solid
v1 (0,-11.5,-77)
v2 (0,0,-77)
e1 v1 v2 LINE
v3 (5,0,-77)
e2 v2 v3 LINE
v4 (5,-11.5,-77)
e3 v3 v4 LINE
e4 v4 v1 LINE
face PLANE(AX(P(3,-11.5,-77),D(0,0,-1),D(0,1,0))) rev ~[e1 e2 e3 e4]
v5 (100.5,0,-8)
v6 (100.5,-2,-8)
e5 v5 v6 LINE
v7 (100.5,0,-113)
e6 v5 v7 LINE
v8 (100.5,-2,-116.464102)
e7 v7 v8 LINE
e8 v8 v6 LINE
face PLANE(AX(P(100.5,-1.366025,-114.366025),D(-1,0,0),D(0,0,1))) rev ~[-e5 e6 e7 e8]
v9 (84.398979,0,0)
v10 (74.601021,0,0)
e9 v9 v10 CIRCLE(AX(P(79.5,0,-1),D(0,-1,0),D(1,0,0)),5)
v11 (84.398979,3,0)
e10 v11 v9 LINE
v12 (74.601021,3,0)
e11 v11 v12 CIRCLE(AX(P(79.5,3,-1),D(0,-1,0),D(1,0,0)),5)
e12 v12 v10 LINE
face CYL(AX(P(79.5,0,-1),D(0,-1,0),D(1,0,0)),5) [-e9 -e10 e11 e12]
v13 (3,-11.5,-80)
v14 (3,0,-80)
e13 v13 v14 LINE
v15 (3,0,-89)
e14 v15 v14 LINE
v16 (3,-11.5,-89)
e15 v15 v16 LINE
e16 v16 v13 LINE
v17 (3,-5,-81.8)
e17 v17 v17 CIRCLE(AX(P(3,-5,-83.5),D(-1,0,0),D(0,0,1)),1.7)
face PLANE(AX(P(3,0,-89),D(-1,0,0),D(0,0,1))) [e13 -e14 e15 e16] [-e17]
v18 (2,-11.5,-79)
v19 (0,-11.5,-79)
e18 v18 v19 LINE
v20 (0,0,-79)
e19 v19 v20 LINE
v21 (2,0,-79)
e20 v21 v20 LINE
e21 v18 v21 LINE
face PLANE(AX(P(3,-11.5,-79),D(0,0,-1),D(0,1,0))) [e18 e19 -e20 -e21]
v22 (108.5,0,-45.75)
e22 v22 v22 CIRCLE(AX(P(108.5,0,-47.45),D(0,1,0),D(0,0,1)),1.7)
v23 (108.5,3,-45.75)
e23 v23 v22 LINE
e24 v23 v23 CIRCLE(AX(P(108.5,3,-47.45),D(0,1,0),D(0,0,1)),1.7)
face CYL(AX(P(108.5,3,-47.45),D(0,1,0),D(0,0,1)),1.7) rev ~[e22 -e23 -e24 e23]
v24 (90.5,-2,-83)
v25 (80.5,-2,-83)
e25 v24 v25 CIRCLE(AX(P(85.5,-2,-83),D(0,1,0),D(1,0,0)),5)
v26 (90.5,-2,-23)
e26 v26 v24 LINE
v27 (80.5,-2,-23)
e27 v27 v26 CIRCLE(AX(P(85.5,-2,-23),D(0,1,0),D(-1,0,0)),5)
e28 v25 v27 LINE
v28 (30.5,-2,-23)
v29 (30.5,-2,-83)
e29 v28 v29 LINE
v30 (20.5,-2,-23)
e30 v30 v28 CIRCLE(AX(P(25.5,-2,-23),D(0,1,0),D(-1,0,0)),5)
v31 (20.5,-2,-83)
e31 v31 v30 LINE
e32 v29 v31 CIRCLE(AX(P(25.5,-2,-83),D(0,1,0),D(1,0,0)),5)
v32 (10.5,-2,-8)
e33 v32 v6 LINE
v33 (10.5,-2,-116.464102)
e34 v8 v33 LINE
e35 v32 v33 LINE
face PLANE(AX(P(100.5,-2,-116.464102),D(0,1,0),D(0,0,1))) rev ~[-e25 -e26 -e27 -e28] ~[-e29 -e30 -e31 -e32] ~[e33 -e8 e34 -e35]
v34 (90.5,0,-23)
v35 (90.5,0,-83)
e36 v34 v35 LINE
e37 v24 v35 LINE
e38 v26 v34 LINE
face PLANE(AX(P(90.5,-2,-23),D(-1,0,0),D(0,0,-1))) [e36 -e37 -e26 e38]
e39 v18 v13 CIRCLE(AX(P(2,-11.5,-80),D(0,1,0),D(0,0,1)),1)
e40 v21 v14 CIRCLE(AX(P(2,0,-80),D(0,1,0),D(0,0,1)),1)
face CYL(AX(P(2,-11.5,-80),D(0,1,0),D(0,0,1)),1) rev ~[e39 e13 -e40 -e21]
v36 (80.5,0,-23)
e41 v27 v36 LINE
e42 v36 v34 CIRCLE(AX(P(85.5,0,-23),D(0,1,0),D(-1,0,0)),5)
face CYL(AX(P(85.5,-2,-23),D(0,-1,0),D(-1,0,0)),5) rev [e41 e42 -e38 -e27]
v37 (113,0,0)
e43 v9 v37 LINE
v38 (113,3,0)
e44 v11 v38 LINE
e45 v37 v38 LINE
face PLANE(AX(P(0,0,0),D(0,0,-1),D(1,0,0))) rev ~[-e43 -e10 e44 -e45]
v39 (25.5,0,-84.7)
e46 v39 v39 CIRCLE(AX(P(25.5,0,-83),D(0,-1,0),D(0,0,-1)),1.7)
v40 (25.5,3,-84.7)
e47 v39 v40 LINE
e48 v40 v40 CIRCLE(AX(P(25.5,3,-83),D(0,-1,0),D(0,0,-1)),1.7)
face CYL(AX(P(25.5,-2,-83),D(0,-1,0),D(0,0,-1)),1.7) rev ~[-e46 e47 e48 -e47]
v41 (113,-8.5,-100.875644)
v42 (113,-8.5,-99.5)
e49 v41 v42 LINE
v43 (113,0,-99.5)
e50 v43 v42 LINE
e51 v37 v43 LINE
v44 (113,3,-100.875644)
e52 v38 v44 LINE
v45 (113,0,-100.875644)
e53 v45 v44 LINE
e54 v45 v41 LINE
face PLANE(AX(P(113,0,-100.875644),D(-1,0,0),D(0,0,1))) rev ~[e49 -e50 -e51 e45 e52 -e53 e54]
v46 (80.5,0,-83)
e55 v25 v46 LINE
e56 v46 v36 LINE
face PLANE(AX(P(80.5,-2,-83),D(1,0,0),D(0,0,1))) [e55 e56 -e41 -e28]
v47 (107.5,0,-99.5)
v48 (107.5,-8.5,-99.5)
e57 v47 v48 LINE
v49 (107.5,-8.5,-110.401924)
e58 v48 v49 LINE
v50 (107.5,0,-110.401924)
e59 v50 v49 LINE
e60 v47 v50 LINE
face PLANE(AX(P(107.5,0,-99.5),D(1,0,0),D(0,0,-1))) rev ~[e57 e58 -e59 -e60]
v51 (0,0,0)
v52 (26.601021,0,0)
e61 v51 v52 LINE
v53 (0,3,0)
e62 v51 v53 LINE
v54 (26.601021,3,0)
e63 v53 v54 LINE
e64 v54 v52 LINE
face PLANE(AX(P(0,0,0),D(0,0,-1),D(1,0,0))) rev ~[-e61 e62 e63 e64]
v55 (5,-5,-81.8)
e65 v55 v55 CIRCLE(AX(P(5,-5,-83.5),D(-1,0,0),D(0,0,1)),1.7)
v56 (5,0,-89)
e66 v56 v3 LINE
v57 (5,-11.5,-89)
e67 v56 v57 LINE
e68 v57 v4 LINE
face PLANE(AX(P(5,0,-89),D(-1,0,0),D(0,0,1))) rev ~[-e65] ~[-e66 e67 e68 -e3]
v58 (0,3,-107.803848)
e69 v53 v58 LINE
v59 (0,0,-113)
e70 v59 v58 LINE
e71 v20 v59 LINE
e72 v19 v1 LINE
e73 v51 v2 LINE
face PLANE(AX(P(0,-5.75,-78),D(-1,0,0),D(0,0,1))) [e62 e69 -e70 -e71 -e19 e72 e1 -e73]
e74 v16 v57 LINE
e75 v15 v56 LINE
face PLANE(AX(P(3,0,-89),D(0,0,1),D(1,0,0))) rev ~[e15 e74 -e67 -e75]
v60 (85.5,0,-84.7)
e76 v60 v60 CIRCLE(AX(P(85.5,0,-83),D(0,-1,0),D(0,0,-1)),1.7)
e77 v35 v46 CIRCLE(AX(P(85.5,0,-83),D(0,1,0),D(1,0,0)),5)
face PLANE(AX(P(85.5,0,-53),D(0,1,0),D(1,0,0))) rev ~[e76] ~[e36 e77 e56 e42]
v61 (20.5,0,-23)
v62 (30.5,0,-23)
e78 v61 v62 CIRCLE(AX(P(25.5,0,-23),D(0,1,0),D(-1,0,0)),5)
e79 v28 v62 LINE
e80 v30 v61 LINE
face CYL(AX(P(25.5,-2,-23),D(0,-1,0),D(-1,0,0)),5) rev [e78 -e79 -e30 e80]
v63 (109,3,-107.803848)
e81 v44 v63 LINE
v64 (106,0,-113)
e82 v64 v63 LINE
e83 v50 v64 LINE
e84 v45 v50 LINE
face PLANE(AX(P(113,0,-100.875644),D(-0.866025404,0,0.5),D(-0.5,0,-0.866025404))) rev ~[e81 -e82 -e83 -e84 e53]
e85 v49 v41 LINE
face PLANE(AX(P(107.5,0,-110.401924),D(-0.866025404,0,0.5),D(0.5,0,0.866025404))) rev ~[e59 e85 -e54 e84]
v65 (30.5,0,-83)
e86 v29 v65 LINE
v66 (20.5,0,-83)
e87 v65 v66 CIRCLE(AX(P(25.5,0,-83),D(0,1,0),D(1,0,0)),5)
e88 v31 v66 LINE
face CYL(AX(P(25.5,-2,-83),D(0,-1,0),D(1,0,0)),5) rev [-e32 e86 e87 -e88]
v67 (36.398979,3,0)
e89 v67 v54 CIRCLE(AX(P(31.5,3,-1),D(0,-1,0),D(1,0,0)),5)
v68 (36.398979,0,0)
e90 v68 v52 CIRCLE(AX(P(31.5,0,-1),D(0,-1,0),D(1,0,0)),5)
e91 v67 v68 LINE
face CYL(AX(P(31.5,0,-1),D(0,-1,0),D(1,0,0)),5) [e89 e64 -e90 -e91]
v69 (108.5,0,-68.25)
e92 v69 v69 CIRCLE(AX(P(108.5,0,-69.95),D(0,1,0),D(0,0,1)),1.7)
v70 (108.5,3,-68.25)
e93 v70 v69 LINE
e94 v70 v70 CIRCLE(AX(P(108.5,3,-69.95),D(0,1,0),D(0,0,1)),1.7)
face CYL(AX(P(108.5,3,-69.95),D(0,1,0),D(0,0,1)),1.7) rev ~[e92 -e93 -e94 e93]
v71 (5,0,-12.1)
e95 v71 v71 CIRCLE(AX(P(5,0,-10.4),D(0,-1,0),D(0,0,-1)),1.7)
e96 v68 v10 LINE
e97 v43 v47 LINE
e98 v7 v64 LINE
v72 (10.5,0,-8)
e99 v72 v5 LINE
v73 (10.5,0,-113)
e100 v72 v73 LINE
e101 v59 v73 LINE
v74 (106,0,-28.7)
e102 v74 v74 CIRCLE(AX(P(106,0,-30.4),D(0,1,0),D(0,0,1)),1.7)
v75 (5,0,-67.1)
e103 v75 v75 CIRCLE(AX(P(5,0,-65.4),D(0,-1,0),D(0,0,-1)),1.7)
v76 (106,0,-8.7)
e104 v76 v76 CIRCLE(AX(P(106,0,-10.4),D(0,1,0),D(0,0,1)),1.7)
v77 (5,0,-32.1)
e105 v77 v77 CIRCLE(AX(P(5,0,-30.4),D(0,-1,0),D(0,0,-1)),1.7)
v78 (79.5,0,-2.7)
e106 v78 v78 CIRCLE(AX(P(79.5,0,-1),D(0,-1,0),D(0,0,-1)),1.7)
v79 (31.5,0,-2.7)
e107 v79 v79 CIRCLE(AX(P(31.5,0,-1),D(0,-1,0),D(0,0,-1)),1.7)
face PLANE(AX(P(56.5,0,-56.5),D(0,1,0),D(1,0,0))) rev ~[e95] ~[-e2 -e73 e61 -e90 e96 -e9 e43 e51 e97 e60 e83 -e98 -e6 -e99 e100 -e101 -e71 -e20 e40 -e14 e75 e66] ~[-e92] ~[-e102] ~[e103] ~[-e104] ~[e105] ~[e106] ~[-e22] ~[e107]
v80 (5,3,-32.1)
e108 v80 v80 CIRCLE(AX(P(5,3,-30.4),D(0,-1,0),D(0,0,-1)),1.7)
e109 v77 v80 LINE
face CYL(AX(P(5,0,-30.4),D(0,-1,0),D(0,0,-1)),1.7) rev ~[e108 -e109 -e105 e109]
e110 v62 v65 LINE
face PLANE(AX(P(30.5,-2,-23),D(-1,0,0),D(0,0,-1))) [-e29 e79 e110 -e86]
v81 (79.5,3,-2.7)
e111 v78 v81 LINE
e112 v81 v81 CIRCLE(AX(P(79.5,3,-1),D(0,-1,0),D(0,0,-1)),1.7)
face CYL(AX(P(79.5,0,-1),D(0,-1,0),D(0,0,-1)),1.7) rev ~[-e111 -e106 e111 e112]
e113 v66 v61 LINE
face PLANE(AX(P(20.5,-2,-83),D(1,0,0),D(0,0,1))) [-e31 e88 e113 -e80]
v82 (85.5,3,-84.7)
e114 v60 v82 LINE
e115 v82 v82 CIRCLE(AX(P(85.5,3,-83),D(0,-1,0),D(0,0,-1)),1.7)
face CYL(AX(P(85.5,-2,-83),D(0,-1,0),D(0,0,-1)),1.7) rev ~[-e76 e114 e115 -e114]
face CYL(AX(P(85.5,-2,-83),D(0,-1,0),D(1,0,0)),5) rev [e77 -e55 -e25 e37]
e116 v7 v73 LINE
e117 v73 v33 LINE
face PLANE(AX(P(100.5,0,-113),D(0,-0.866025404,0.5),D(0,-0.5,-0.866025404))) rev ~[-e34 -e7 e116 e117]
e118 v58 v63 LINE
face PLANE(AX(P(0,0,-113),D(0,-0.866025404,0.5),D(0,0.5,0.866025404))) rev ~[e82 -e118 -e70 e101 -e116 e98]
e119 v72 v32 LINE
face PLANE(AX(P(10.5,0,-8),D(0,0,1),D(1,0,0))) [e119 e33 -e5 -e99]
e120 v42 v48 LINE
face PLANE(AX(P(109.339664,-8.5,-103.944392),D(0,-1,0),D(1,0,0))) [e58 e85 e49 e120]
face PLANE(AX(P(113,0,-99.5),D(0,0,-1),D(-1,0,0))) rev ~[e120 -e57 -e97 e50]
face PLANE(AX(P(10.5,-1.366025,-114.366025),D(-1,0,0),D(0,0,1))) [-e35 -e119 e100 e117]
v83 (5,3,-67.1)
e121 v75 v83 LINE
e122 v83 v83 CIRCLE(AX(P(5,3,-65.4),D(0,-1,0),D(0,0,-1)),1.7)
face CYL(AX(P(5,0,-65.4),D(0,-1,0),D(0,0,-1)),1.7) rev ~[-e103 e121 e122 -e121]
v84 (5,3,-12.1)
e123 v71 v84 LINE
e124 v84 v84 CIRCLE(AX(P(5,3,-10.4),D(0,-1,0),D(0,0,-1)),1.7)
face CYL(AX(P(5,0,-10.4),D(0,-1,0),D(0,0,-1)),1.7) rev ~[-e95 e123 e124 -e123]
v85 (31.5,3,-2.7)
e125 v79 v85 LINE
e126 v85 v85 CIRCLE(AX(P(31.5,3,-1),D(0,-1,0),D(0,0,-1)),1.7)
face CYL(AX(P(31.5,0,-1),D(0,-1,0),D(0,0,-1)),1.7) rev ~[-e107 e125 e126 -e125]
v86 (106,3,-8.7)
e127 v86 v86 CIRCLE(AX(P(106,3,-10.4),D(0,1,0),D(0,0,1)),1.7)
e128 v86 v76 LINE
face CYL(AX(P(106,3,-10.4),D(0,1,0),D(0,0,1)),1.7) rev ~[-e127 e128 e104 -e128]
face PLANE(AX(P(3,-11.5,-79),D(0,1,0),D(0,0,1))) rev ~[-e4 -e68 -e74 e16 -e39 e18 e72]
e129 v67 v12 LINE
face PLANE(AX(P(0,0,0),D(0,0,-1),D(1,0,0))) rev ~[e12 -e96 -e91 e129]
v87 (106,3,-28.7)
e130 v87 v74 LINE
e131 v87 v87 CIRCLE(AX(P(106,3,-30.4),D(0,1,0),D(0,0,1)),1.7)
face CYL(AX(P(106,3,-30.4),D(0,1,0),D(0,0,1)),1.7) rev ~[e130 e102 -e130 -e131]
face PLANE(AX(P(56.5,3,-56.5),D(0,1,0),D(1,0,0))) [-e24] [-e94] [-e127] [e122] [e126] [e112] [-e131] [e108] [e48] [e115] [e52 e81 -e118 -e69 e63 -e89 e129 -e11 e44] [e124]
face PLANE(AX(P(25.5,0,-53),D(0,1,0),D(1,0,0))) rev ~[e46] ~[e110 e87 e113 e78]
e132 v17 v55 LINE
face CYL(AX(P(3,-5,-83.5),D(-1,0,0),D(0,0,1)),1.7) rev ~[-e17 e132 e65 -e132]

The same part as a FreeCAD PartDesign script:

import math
import FreeCAD as App
import Part
import Sketcher

V = App.Vector
Q = App.Units.Quantity


def edges_at(feature, points):
    """Names of the edges that pass closest to the given points."""
    edges = feature.Shape.Edges
    near = lambda p: min(range(len(edges)), key=lambda i: edges[i].distToShape(Part.Vertex(*p))[0])
    return sorted({f"Edge{near(p) + 1}" for p in points})


def add_polygon(sketch, points):
    """Adds a closed chain of lines whose ends are joined by coincident constraints."""
    first, n = sketch.GeometryCount, len(points)
    for a, b in zip(points, points[1:] + points[:1]):
        sketch.addGeometry(Part.LineSegment(App.Vector(*a, 0), App.Vector(*b, 0)), False)
    for i in range(n):
        sketch.addConstraint(Sketcher.Constraint("Coincident", first + i, 2, first + (i + 1) % n, 1))

doc = App.newDocument("Part")
body = doc.addObject("PartDesign::Body", "Body")

sketch1 = body.newObject("Sketcher::SketchObject", "Sketch")
sketch1.AttachmentSupport = (doc.getObject("XZ_Plane"), [""])
sketch1.MapMode = "FlatFace"
add_polygon(sketch1, [(0, -113), (0, 0), (113, 0), (113, -113)])
sketch1.addConstraint([
    Sketcher.Constraint("Vertical", 0),
    Sketcher.Constraint("Horizontal", 1),
    Sketcher.Constraint("Vertical", 2),
    Sketcher.Constraint("Horizontal", 3),
    Sketcher.Constraint("Coincident", 0, 2, -1, 1),
    Sketcher.Constraint("Equal", 3, 0),
    Sketcher.Constraint("DistanceX", 1, 1, 1, 2, Q("113 mm")),
])
pad1 = body.newObject("PartDesign::Pad", "Pad")
pad1.Profile = sketch1
pad1.Length = 3
pad1.Reversed = True

sketch2 = body.newObject("Sketcher::SketchObject", "Sketch001")
sketch2.AttachmentSupport = (doc.getObject("XZ_Plane"), [""])
sketch2.MapMode = "FlatFace"
sketch2.AttachmentOffset = App.Placement(V(0, 0, -3), App.Rotation())
sketch2.addGeometry(Part.Circle(V(108.5, -70, 0), V(0, 0, 1), 1.7), False)
sketch2.addConstraint([
    Sketcher.Constraint("Diameter", 0, Q("3.4 mm")),
    Sketcher.Constraint("DistanceX", -1, 1, 0, 3, Q("108.5 mm")),
    Sketcher.Constraint("DistanceY", 0, 3, -1, 1, Q("69.95 mm")),
])
pocket1 = body.newObject("PartDesign::Pocket", "Pocket")
pocket1.Profile = sketch2
pocket1.Type = "UpToFirst"
pocket1.Reversed = True

sketch3 = body.newObject("Sketcher::SketchObject", "Sketch002")
sketch3.AttachmentSupport = (doc.getObject("XZ_Plane"), [""])
sketch3.MapMode = "FlatFace"
sketch3.AttachmentOffset = App.Placement(V(0, 0, -3), App.Rotation())
sketch3.addGeometry(Part.Circle(V(108.5, -47.5, 0), V(0, 0, 1), 1.7), False)
sketch3.addConstraint([
    Sketcher.Constraint("Diameter", 0, Q("3.4 mm")),
    Sketcher.Constraint("DistanceX", -1, 1, 0, 3, Q("108.5 mm")),
    Sketcher.Constraint("DistanceY", 0, 3, -1, 1, Q("47.45 mm")),
])
pocket2 = body.newObject("PartDesign::Pocket", "Pocket001")
pocket2.Profile = sketch3
pocket2.Type = "UpToFirst"
pocket2.Reversed = True

sketch4 = body.newObject("Sketcher::SketchObject", "Sketch003")
sketch4.AttachmentSupport = (doc.getObject("XZ_Plane"), [""])
sketch4.MapMode = "FlatFace"
sketch4.AttachmentOffset = App.Placement(V(0, 0, -3), App.Rotation())
sketch4.addGeometry(Part.Circle(V(106, -30.4, 0), V(0, 0, 1), 1.7), False)
sketch4.addConstraint([
    Sketcher.Constraint("Diameter", 0, Q("3.4 mm")),
    Sketcher.Constraint("DistanceX", -1, 1, 0, 3, Q("106 mm")),
    Sketcher.Constraint("DistanceY", 0, 3, -1, 1, Q("30.4 mm")),
])
pocket3 = body.newObject("PartDesign::Pocket", "Pocket002")
pocket3.Profile = sketch4
pocket3.Type = "UpToFirst"
pocket3.Reversed = True

sketch5 = body.newObject("Sketcher::SketchObject", "Sketch004")
sketch5.AttachmentSupport = (doc.getObject("XZ_Plane"), [""])
sketch5.MapMode = "FlatFace"
sketch5.AttachmentOffset = App.Placement(V(0, 0, -3), App.Rotation())
sketch5.addGeometry(Part.Circle(V(106, -10.4, 0), V(0, 0, 1), 1.7), False)
sketch5.addConstraint([
    Sketcher.Constraint("Diameter", 0, Q("3.4 mm")),
    Sketcher.Constraint("DistanceX", -1, 1, 0, 3, Q("106 mm")),
    Sketcher.Constraint("DistanceY", 0, 3, -1, 1, Q("10.4 mm")),
])
pocket4 = body.newObject("PartDesign::Pocket", "Pocket003")
pocket4.Profile = sketch5
pocket4.Type = "UpToFirst"
pocket4.Reversed = True

sketch6 = body.newObject("Sketcher::SketchObject", "Sketch005")
sketch6.AttachmentSupport = (doc.getObject("XZ_Plane"), [""])
sketch6.MapMode = "FlatFace"
add_polygon(sketch6, [(10, -113), (10, -8), (100, -8), (100, -113)])
sketch6.addConstraint([
    Sketcher.Constraint("Vertical", 0),
    Sketcher.Constraint("Horizontal", 1),
    Sketcher.Constraint("Vertical", 2),
    Sketcher.Constraint("Horizontal", 3),
    Sketcher.Constraint("DistanceX", 1, 1, 1, 2, Q("90 mm")),
    Sketcher.Constraint("DistanceY", 0, 1, 0, 2, Q("105 mm")),
    Sketcher.Constraint("DistanceY", 0, 2, -1, 1, Q("8 mm")),
    Sketcher.Constraint("DistanceX", -1, 1, 0, 2, Q("10.5 mm")),
])
pad2 = body.newObject("PartDesign::Pad", "Pad001")
pad2.Profile = sketch6
pad2.Length = 2

sketch7 = body.newObject("Sketcher::SketchObject", "Sketch006")
sketch7.AttachmentSupport = (doc.getObject("XZ_Plane"), [""])
sketch7.MapMode = "FlatFace"
sketch7.addGeometry([
    Part.Circle(V(80, -1, 0), V(0, 0, 1), 5),
    Part.Circle(V(32, -1, 0), V(0, 0, 1), 5),
], False)
sketch7.addConstraint([
    Sketcher.Constraint("Equal", 0, 1),
    Sketcher.Constraint("Horizontal", 0, 3, 1, 3),
    Sketcher.Constraint("Diameter", 0, Q("10 mm")),
    Sketcher.Constraint("DistanceY", 0, 3, -1, 1, Q("1 mm")),
    Sketcher.Constraint("DistanceX", 1, 3, 0, 3, Q("48 mm")),
    Sketcher.Constraint("DistanceX", -1, 1, 0, 3, Q("79.5 mm")),
])
pad3 = body.newObject("PartDesign::Pad", "Pad002")
pad3.Profile = sketch7
pad3.Length = 3
pad3.Reversed = True

sketch8 = body.newObject("Sketcher::SketchObject", "Sketch007")
sketch8.AttachmentSupport = (doc.getObject("XZ_Plane"), [""])
sketch8.MapMode = "FlatFace"
sketch8.addGeometry(Part.Circle(V(31.5, -1, 0), V(0, 0, 1), 1.7), False)
sketch8.addConstraint([
    Sketcher.Constraint("Diameter", 0, Q("3.4 mm")),
    Sketcher.Constraint("DistanceY", 0, 3, -1, 1, Q("1 mm")),
    Sketcher.Constraint("DistanceX", -1, 1, 0, 3, Q("31.5 mm")),
])
pocket5 = body.newObject("PartDesign::Pocket", "Pocket004")
pocket5.Profile = sketch8
pocket5.Type = "UpToFirst"

sketch9 = body.newObject("Sketcher::SketchObject", "Sketch008")
sketch9.AttachmentSupport = (doc.getObject("XZ_Plane"), [""])
sketch9.MapMode = "FlatFace"
sketch9.addGeometry(Part.Circle(V(79.5, -1, 0), V(0, 0, 1), 1.7), False)
sketch9.addConstraint([
    Sketcher.Constraint("Diameter", 0, Q("3.4 mm")),
    Sketcher.Constraint("DistanceY", 0, 3, -1, 1, Q("1 mm")),
    Sketcher.Constraint("DistanceX", -1, 1, 0, 3, Q("79.5 mm")),
])
pocket6 = body.newObject("PartDesign::Pocket", "Pocket005")
pocket6.Profile = sketch9
pocket6.Type = "UpToFirst"

sketch10 = body.newObject("Sketcher::SketchObject", "Sketch009")
sketch10.AttachmentSupport = (doc.getObject("XZ_Plane"), [""])
sketch10.MapMode = "FlatFace"
sketch10.addGeometry(Part.Circle(V(5, -10.4, 0), V(0, 0, 1), 1.7), False)
sketch10.addConstraint([
    Sketcher.Constraint("Diameter", 0, Q("3.4 mm")),
    Sketcher.Constraint("DistanceX", -1, 1, 0, 3, Q("5 mm")),
    Sketcher.Constraint("DistanceY", 0, 3, -1, 1, Q("10.4 mm")),
])
pocket7 = body.newObject("PartDesign::Pocket", "Pocket006")
pocket7.Profile = sketch10
pocket7.Type = "UpToFirst"

sketch11 = body.newObject("Sketcher::SketchObject", "Sketch010")
sketch11.AttachmentSupport = (doc.getObject("XZ_Plane"), [""])
sketch11.MapMode = "FlatFace"
sketch11.addGeometry(Part.Circle(V(5, -30.4, 0), V(0, 0, 1), 1.7), False)
sketch11.addConstraint([
    Sketcher.Constraint("Diameter", 0, Q("3.4 mm")),
    Sketcher.Constraint("DistanceX", -1, 1, 0, 3, Q("5 mm")),
    Sketcher.Constraint("DistanceY", 0, 3, -1, 1, Q("30.4 mm")),
])
pocket8 = body.newObject("PartDesign::Pocket", "Pocket007")
pocket8.Profile = sketch11
pocket8.Type = "UpToFirst"

sketch12 = body.newObject("Sketcher::SketchObject", "Sketch011")
sketch12.AttachmentSupport = (doc.getObject("XZ_Plane"), [""])
sketch12.MapMode = "FlatFace"
sketch12.addGeometry(Part.Circle(V(5, -65.4, 0), V(0, 0, 1), 1.7), False)
sketch12.addConstraint([
    Sketcher.Constraint("Diameter", 0, Q("3.4 mm")),
    Sketcher.Constraint("DistanceX", -1, 1, 0, 3, Q("5 mm")),
    Sketcher.Constraint("DistanceY", 0, 3, -1, 1, Q("65.4 mm")),
])
pocket9 = body.newObject("PartDesign::Pocket", "Pocket008")
pocket9.Profile = sketch12
pocket9.Type = "UpToFirst"

sketch13 = body.newObject("Sketcher::SketchObject", "Sketch012")
sketch13.AttachmentSupport = (doc.getObject("XZ_Plane"), [""])
sketch13.MapMode = "FlatFace"
sketch13.AttachmentOffset = App.Placement(V(0, 0, 2), App.Rotation())
sketch13.addGeometry(Part.Circle(V(25.5, -83, 0), V(0, 0, 1), 1.7), False)
sketch13.addConstraint([
    Sketcher.Constraint("Diameter", 0, Q("3.4 mm")),
    Sketcher.Constraint("DistanceY", 0, 3, -1, 1, Q("83 mm")),
    Sketcher.Constraint("DistanceX", -1, 1, 0, 3, Q("25.5 mm")),
])
pocket10 = body.newObject("PartDesign::Pocket", "Pocket009")
pocket10.Profile = sketch13
pocket10.Type = "UpToFirst"

sketch14 = body.newObject("Sketcher::SketchObject", "Sketch013")
sketch14.AttachmentSupport = (doc.getObject("XZ_Plane"), [""])
sketch14.MapMode = "FlatFace"
sketch14.AttachmentOffset = App.Placement(V(0, 0, 2), App.Rotation())
sketch14.addGeometry(Part.Circle(V(85.5, -83, 0), V(0, 0, 1), 1.7), False)
sketch14.addConstraint([
    Sketcher.Constraint("Diameter", 0, Q("3.4 mm")),
    Sketcher.Constraint("DistanceY", 0, 3, -1, 1, Q("83 mm")),
    Sketcher.Constraint("DistanceX", -1, 1, 0, 3, Q("85.5 mm")),
])
pocket11 = body.newObject("PartDesign::Pocket", "Pocket010")
pocket11.Profile = sketch14
pocket11.Type = "UpToFirst"

sketch15 = body.newObject("Sketcher::SketchObject", "Sketch014")
sketch15.AttachmentSupport = (doc.getObject("YZ_Plane"), [""])
sketch15.MapMode = "FlatFace"
sketch15.AttachmentOffset = App.Placement(V(0, 0, 100.5), App.Rotation())
add_polygon(sketch15, [(-2, -116.5), (0, -113), (-2, -113)])
sketch15.addConstraint([
    Sketcher.Constraint("Horizontal", 1),
    Sketcher.Constraint("Vertical", 2),
    Sketcher.Constraint("PointOnObject", 0, 2, -2),
    Sketcher.Constraint("DistanceX", 1, 2, 1, 1, Q("2 mm")),
    Sketcher.Constraint("Angle", 0, Q("60 deg")),
    Sketcher.Constraint("DistanceY", 0, 2, -1, 1, Q("113 mm")),
])
pad4 = body.newObject("PartDesign::Pad", "Pad003")
pad4.Profile = sketch15
pad4.Length = 90
pad4.Reversed = True

sketch16 = body.newObject("Sketcher::SketchObject", "Sketch015")
sketch16.AttachmentSupport = (doc.getObject("XZ_Plane"), [""])
sketch16.MapMode = "FlatFace"
sketch16.AttachmentOffset = App.Placement(V(0, 0, 2), App.Rotation())
sketch16.addGeometry([
    Part.LineSegment(V(20, -83, 0), V(20, -23, 0)),
    Part.ArcOfCircle(Part.Circle(V(26, -23, 0), V(0, 0, 1), 5), math.radians(0), math.radians(180)),
    Part.LineSegment(V(30, -23, 0), V(30, -83, 0)),
    Part.ArcOfCircle(Part.Circle(V(26, -83, 0), V(0, 0, 1), 5), math.radians(180), math.radians(360)),
    Part.LineSegment(V(80, -83, 0), V(80, -23, 0)),
    Part.ArcOfCircle(Part.Circle(V(86, -23, 0), V(0, 0, 1), 5), math.radians(0), math.radians(180)),
    Part.LineSegment(V(90, -23, 0), V(90, -83, 0)),
    Part.ArcOfCircle(Part.Circle(V(86, -83, 0), V(0, 0, 1), 5), math.radians(180), math.radians(360)),
], False)
sketch16.addConstraint([
    Sketcher.Constraint("Tangent", 0, 2, 1, 2),
    Sketcher.Constraint("Tangent", 1, 1, 2, 1),
    Sketcher.Constraint("Tangent", 2, 2, 3, 2),
    Sketcher.Constraint("Tangent", 3, 1, 0, 1),
    Sketcher.Constraint("Tangent", 4, 2, 5, 2),
    Sketcher.Constraint("Tangent", 5, 1, 6, 1),
    Sketcher.Constraint("Tangent", 6, 2, 7, 2),
    Sketcher.Constraint("Tangent", 7, 1, 4, 1),
    Sketcher.Constraint("Vertical", 0),
    Sketcher.Constraint("Vertical", 2),
    Sketcher.Constraint("Vertical", 4),
    Sketcher.Constraint("Vertical", 6),
    Sketcher.Constraint("Equal", 3, 5),
    Sketcher.Constraint("Horizontal", 1, 3, 5, 3),
    Sketcher.Constraint("Horizontal", 3, 3, 7, 3),
    Sketcher.Constraint("Radius", 1, Q("5 mm")),
    Sketcher.Constraint("DistanceY", 0, 1, 0, 2, Q("60 mm")),
    Sketcher.Constraint("DistanceY", 1, 3, -1, 1, Q("23 mm")),
    Sketcher.Constraint("DistanceX", 1, 3, 5, 3, Q("60 mm")),
    Sketcher.Constraint("DistanceX", -1, 1, 1, 3, Q("25.5 mm")),
])
pocket12 = body.newObject("PartDesign::Pocket", "Pocket011")
pocket12.Profile = sketch16
pocket12.Length = 2

sketch17 = body.newObject("Sketcher::SketchObject", "Sketch016")
sketch17.AttachmentSupport = (doc.getObject("XZ_Plane"), [""])
sketch17.MapMode = "FlatFace"
add_polygon(sketch17, [(3, -77), (3, -89), (5, -89), (5, -77)])
sketch17.addConstraint([
    Sketcher.Constraint("Vertical", 0),
    Sketcher.Constraint("Horizontal", 1),
    Sketcher.Constraint("Vertical", 2),
    Sketcher.Constraint("Horizontal", 3),
    Sketcher.Constraint("DistanceX", 1, 1, 1, 2, Q("2 mm")),
    Sketcher.Constraint("DistanceY", 0, 2, 0, 1, Q("12 mm")),
    Sketcher.Constraint("DistanceX", -1, 1, 0, 2, Q("3 mm")),
    Sketcher.Constraint("DistanceY", 0, 2, -1, 1, Q("89 mm")),
])
pad5 = body.newObject("PartDesign::Pad", "Pad004")
pad5.Profile = sketch17
pad5.Length = 11.5

sketch18 = body.newObject("Sketcher::SketchObject", "Sketch017")
sketch18.AttachmentSupport = (doc.getObject("YZ_Plane"), [""])
sketch18.MapMode = "FlatFace"
sketch18.AttachmentOffset = App.Placement(V(0, 0, 3), App.Rotation())
sketch18.addGeometry(Part.Circle(V(-5, -83.5, 0), V(0, 0, 1), 1.7), False)
sketch18.addConstraint([
    Sketcher.Constraint("Diameter", 0, Q("3.4 mm")),
    Sketcher.Constraint("DistanceX", 0, 3, -1, 1, Q("5 mm")),
    Sketcher.Constraint("DistanceY", 0, 3, -1, 1, Q("83.5 mm")),
])
pocket13 = body.newObject("PartDesign::Pocket", "Pocket012")
pocket13.Profile = sketch18
pocket13.Type = "UpToFirst"
pocket13.Reversed = True

sketch19 = body.newObject("Sketcher::SketchObject", "Sketch018")
sketch19.AttachmentSupport = (doc.getObject("XZ_Plane"), [""])
sketch19.MapMode = "FlatFace"
add_polygon(sketch19, [(113, -101), (106, -113), (113, -113)])
sketch19.addConstraint([
    Sketcher.Constraint("Horizontal", 1),
    Sketcher.Constraint("Vertical", 2),
    Sketcher.Constraint("DistanceX", 1, 1, 1, 2, Q("7 mm")),
    Sketcher.Constraint("Angle", 0, Q("-120 deg")),
    Sketcher.Constraint("DistanceX", -1, 1, 0, 2, Q("106 mm")),
    Sketcher.Constraint("DistanceY", 0, 2, -1, 1, Q("113 mm")),
])
pocket14 = body.newObject("PartDesign::Pocket", "Pocket013")
pocket14.Profile = sketch19
pocket14.Type = "UpToFirst"

sketch20 = body.newObject("Sketcher::SketchObject", "Sketch019")
sketch20.AttachmentSupport = (doc.getObject("XZ_Plane"), [""])
sketch20.MapMode = "FlatFace"
add_polygon(sketch20, [(113, -99.5), (107.5, -99.5), (107.5, -110.4), (113, -100.9)])
sketch20.addConstraint([
    Sketcher.Constraint("Horizontal", 0),
    Sketcher.Constraint("Vertical", 1),
    Sketcher.Constraint("Vertical", 3),
    Sketcher.Constraint("Angle", 2, Q("60 deg")),
    Sketcher.Constraint("Distance", 2, Q("11 mm")),
    Sketcher.Constraint("DistanceX", -1, 1, 2, 2, Q("113 mm")),
    Sketcher.Constraint("DistanceY", 0, 2, -1, 1, Q("99.5 mm")),
    Sketcher.Constraint("DistanceY", 1, 2, 1, 1, Q("10.901924 mm")),
])
pad6 = body.newObject("PartDesign::Pad", "Pad005")
pad6.Profile = sketch20
pad6.Length = 8.5

sketch21 = body.newObject("Sketcher::SketchObject", "Sketch020")
sketch21.AttachmentSupport = (doc.getObject("YZ_Plane"), [""])
sketch21.MapMode = "FlatFace"
sketch21.AttachmentOffset = App.Placement(V(0, 0, 3), App.Rotation())
add_polygon(sketch21, [(0, -79), (-11.5, -79), (-11.5, -77), (0, -77)])
sketch21.addConstraint([
    Sketcher.Constraint("Horizontal", 0),
    Sketcher.Constraint("Vertical", 1),
    Sketcher.Constraint("Horizontal", 2),
    Sketcher.Constraint("Vertical", 3),
    Sketcher.Constraint("PointOnObject", 2, 2, -2),
    Sketcher.Constraint("DistanceY", 1, 1, 1, 2, Q("2 mm")),
    Sketcher.Constraint("DistanceX", 0, 2, 0, 1, Q("11.5 mm")),
    Sketcher.Constraint("DistanceY", 0, 2, -1, 1, Q("79 mm")),
])
pad7 = body.newObject("PartDesign::Pad", "Pad006")
pad7.Profile = sketch21
pad7.Length = 3
pad7.Reversed = True
doc.recompute()

fillet = body.newObject("PartDesign::Fillet", "Fillet")
fillet.Base = (pad7, edges_at(pad7, [(3, -5.75, -79)]))
fillet.Radius = 1

sketch22 = body.newObject("Sketcher::SketchObject", "Sketch021")
sketch22.AttachmentSupport = (doc.getObject("YZ_Plane"), [""])
sketch22.MapMode = "FlatFace"
add_polygon(sketch22, [(0, -113), (3, -107.8), (3, -113)])
sketch22.addConstraint([
    Sketcher.Constraint("Vertical", 1),
    Sketcher.Constraint("Horizontal", 2),
    Sketcher.Constraint("PointOnObject", 2, 2, -2),
    Sketcher.Constraint("DistanceX", 2, 2, 2, 1, Q("3 mm")),
    Sketcher.Constraint("Angle", 0, Q("60 deg")),
    Sketcher.Constraint("DistanceY", 1, 2, -1, 1, Q("113 mm")),
])
pocket15 = body.newObject("PartDesign::Pocket", "Pocket014")
pocket15.Profile = sketch22
pocket15.Type = "ThroughAll"
pocket15.Reversed = True

doc.recompute()
